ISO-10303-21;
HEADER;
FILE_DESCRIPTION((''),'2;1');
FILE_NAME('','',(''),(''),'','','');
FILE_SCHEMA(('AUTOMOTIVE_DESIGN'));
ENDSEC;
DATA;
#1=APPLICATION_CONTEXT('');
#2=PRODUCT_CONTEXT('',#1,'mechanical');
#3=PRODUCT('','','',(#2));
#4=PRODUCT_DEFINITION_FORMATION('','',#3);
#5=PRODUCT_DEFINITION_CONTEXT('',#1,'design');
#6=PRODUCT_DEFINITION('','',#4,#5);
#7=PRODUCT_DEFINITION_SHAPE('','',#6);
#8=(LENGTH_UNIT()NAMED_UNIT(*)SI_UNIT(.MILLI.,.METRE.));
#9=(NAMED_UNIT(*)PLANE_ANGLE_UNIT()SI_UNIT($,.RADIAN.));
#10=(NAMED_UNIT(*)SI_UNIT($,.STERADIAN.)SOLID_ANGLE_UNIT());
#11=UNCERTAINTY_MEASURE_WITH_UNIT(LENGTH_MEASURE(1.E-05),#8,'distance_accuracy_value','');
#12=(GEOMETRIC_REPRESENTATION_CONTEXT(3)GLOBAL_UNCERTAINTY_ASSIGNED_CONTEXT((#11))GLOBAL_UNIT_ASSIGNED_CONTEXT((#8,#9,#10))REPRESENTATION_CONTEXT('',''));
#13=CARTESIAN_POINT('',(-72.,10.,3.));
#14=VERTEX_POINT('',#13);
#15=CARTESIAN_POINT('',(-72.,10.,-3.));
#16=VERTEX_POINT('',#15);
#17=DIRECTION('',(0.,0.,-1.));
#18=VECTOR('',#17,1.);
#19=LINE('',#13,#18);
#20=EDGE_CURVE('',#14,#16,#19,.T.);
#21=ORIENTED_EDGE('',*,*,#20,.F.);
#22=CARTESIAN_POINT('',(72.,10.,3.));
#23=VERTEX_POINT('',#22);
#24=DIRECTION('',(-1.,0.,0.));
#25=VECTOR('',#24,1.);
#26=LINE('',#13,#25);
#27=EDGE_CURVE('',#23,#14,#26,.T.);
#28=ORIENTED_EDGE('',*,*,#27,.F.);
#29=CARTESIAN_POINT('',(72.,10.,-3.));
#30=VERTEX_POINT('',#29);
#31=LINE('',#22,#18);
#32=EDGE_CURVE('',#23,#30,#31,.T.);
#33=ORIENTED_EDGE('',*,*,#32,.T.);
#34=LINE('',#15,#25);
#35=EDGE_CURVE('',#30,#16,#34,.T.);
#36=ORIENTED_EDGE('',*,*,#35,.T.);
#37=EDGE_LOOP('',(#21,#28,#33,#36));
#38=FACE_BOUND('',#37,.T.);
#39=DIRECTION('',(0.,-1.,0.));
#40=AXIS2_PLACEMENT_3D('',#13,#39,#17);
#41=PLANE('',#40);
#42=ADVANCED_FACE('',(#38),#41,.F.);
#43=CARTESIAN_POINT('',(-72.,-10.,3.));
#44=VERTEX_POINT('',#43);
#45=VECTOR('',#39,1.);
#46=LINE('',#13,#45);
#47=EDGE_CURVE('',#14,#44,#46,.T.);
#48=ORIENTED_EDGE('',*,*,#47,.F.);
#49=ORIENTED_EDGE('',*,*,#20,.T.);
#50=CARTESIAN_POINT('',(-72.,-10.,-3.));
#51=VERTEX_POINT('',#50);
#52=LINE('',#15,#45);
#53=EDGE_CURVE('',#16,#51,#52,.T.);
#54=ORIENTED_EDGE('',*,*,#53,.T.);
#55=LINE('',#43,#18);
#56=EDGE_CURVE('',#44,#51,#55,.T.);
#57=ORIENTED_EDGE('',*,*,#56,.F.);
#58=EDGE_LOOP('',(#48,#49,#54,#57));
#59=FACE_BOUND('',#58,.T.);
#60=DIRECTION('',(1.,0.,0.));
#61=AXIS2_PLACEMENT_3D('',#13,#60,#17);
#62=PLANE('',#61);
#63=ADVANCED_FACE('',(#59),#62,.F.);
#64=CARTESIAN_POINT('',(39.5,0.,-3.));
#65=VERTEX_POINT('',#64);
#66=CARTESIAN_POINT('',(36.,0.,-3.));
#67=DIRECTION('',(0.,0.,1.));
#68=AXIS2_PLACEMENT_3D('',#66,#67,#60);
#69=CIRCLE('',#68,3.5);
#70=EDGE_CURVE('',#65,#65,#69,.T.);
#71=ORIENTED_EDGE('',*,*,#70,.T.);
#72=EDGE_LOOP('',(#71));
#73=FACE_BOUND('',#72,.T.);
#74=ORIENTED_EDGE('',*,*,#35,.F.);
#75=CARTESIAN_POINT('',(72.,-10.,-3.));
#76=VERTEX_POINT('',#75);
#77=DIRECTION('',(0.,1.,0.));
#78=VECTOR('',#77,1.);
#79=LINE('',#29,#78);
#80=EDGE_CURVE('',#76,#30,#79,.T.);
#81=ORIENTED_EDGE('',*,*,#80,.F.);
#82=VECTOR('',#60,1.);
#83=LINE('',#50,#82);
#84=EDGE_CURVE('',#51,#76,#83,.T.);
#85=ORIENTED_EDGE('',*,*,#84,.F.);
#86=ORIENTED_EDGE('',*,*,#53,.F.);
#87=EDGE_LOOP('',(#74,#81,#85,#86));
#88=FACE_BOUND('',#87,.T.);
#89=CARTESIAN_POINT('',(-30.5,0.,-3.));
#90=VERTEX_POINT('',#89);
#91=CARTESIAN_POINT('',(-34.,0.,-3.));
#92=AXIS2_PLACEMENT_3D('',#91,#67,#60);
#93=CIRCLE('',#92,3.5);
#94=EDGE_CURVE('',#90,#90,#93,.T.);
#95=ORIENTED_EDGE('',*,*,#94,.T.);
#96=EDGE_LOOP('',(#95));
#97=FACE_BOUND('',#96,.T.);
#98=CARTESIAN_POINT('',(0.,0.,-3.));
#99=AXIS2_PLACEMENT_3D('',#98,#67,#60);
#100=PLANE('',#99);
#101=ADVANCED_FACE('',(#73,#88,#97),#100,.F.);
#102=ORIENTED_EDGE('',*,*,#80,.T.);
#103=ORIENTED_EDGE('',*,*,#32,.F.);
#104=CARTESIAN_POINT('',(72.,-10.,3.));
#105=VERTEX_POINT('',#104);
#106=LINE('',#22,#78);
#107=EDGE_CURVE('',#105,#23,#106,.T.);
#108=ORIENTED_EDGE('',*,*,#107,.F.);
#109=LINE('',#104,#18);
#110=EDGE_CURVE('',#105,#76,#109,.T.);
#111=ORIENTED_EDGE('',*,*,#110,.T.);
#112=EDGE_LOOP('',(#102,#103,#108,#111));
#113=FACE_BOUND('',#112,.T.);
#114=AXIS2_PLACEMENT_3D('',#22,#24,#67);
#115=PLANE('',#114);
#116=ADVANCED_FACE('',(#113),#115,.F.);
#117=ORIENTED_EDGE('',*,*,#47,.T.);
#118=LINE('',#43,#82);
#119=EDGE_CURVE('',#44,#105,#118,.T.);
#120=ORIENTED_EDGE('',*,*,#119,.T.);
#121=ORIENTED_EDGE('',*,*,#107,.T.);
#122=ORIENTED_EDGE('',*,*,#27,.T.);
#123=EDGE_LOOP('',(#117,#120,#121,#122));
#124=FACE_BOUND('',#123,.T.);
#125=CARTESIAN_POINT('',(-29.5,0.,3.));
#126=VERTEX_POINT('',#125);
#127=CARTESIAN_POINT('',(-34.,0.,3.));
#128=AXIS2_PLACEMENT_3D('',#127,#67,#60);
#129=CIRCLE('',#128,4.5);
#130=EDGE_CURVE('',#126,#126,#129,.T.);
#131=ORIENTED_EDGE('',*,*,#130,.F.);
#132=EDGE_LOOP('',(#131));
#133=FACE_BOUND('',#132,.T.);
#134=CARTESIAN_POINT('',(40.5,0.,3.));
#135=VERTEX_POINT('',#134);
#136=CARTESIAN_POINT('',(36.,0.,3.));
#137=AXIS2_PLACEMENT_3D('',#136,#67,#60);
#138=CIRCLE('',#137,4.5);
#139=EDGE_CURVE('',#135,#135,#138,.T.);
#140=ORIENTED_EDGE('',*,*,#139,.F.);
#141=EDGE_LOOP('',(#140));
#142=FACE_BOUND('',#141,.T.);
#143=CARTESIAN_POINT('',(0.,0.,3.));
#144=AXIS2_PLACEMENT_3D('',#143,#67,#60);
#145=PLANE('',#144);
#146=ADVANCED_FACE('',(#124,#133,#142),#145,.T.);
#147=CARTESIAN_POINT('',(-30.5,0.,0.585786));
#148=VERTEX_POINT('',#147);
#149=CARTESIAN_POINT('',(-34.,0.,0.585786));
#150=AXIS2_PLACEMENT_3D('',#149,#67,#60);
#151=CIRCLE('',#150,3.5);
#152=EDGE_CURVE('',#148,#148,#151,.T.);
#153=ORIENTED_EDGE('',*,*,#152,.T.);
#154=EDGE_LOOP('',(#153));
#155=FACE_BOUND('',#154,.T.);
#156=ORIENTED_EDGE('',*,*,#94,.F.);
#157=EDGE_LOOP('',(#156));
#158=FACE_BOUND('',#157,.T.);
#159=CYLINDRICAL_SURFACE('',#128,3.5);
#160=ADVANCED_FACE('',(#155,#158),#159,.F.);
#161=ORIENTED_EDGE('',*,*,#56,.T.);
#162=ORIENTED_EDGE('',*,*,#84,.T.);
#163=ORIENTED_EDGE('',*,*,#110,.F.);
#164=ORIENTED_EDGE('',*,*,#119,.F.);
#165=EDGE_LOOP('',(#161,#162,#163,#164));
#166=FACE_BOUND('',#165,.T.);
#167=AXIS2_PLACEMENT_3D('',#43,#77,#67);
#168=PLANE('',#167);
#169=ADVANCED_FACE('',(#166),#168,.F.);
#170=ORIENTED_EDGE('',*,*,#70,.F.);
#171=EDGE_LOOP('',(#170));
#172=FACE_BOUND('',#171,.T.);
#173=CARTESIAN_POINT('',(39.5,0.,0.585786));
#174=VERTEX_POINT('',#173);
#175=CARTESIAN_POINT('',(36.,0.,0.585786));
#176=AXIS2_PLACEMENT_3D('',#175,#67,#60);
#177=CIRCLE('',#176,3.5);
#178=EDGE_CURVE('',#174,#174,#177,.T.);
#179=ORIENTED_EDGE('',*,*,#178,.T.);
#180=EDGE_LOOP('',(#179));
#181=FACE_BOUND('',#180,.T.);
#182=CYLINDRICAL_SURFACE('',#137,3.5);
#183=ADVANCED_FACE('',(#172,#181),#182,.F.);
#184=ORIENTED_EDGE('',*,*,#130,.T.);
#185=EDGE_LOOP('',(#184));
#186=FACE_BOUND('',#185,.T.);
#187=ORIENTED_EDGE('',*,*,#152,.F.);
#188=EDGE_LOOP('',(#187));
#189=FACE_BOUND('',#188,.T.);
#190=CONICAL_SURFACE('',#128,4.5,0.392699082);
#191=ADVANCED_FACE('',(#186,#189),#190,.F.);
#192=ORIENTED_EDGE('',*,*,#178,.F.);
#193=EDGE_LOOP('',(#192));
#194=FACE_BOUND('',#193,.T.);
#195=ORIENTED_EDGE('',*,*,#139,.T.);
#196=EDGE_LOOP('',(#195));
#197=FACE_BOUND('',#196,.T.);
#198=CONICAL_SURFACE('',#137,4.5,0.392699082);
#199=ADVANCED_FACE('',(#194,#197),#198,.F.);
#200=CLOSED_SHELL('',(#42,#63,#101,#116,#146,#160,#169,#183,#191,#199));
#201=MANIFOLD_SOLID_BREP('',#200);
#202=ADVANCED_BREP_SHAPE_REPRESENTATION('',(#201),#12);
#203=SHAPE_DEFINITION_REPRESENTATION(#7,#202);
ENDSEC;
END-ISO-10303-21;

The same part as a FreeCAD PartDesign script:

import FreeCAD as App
import Part
import Sketcher
Q = App.Units.Quantity


def add_polygon(sketch, points):
    """Adds a closed chain of lines whose ends are joined by coincident constraints."""
    first, n = sketch.GeometryCount, len(points)
    for a, b in zip(points, points[1:] + points[:1]):
        sketch.addGeometry(Part.LineSegment(App.Vector(*a, 0), App.Vector(*b, 0)), False)
    for i in range(n):
        sketch.addConstraint(Sketcher.Constraint("Coincident", first + i, 2, first + (i + 1) % n, 1))

doc = App.newDocument("Part")
body = doc.addObject("PartDesign::Body", "Body")

# Sketch on XY plane
sketch1 = body.newObject("Sketcher::SketchObject", "Sketch")
sketch1.AttachmentSupport = (doc.getObject("XY_Plane"), [""])
sketch1.MapMode = "FlatFace"
add_polygon(sketch1, [(-72, 10), (-72, -10), (72, -10), (72, 10)])  # lines 0-3
sketch1.addConstraint([
    Sketcher.Constraint("Vertical", 0),
    Sketcher.Constraint("Horizontal", 1),
    Sketcher.Constraint("Vertical", 2),
    Sketcher.Constraint("Horizontal", 3),
    Sketcher.Constraint("Symmetric", 0, 2, 2, 2, -1, 1),
    Sketcher.Constraint("DistanceX", 1, 1, 1, 2, Q("144 mm")),
    Sketcher.Constraint("DistanceY", 0, 2, 0, 1, Q("20 mm")),
])
pad1 = body.newObject("PartDesign::Pad", "Pad")
pad1.Profile = sketch1
pad1.Length = 6
pad1.Midplane = True

# Sketch on YZ plane
sketch2 = body.newObject("Sketcher::SketchObject", "Sketch001")
sketch2.AttachmentSupport = (doc.getObject("YZ_Plane"), [""])
sketch2.MapMode = "FlatFace"
sketch2.AttachmentOffset = App.Placement(App.Vector(0, 0, -34), App.Rotation())
add_polygon(sketch2, [(0, -3), (0, 3), (-4.5, 3), (-3.5, 0.6), (-3.5, -3)])  # lines 0-4
sketch2.addConstraint([
    Sketcher.Constraint("Vertical", 0),
    Sketcher.Constraint("Horizontal", 1),
    Sketcher.Constraint("Vertical", 3),
    Sketcher.Constraint("Horizontal", 4),
    Sketcher.Constraint("Symmetric", 0, 2, 4, 2, -1, 1),
    Sketcher.Constraint("DistanceY", 0, 1, 0, 2, Q("6 mm")),
    Sketcher.Constraint("DistanceX", 1, 2, 1, 1, Q("4.5 mm")),
    Sketcher.Constraint("DistanceX", 4, 1, 4, 2, Q("3.5 mm")),
    Sketcher.Constraint("Angle", 2, Q("-67.5 deg")),
])
groove = body.newObject("PartDesign::Groove", "Groove")
groove.Profile = sketch2
groove.ReferenceAxis = (sketch2, ["V_Axis"])
groove.Angle = 360
doc.recompute()

linearpattern = body.newObject("PartDesign::LinearPattern", "LinearPattern")
linearpattern.Originals = [groove]
linearpattern.Direction = (doc.getObject("X_Axis"), [""])
linearpattern.Mode = "offset"
linearpattern.Offset = 70
linearpattern.Occurrences = 2
body.Tip = linearpattern

doc.recompute()
